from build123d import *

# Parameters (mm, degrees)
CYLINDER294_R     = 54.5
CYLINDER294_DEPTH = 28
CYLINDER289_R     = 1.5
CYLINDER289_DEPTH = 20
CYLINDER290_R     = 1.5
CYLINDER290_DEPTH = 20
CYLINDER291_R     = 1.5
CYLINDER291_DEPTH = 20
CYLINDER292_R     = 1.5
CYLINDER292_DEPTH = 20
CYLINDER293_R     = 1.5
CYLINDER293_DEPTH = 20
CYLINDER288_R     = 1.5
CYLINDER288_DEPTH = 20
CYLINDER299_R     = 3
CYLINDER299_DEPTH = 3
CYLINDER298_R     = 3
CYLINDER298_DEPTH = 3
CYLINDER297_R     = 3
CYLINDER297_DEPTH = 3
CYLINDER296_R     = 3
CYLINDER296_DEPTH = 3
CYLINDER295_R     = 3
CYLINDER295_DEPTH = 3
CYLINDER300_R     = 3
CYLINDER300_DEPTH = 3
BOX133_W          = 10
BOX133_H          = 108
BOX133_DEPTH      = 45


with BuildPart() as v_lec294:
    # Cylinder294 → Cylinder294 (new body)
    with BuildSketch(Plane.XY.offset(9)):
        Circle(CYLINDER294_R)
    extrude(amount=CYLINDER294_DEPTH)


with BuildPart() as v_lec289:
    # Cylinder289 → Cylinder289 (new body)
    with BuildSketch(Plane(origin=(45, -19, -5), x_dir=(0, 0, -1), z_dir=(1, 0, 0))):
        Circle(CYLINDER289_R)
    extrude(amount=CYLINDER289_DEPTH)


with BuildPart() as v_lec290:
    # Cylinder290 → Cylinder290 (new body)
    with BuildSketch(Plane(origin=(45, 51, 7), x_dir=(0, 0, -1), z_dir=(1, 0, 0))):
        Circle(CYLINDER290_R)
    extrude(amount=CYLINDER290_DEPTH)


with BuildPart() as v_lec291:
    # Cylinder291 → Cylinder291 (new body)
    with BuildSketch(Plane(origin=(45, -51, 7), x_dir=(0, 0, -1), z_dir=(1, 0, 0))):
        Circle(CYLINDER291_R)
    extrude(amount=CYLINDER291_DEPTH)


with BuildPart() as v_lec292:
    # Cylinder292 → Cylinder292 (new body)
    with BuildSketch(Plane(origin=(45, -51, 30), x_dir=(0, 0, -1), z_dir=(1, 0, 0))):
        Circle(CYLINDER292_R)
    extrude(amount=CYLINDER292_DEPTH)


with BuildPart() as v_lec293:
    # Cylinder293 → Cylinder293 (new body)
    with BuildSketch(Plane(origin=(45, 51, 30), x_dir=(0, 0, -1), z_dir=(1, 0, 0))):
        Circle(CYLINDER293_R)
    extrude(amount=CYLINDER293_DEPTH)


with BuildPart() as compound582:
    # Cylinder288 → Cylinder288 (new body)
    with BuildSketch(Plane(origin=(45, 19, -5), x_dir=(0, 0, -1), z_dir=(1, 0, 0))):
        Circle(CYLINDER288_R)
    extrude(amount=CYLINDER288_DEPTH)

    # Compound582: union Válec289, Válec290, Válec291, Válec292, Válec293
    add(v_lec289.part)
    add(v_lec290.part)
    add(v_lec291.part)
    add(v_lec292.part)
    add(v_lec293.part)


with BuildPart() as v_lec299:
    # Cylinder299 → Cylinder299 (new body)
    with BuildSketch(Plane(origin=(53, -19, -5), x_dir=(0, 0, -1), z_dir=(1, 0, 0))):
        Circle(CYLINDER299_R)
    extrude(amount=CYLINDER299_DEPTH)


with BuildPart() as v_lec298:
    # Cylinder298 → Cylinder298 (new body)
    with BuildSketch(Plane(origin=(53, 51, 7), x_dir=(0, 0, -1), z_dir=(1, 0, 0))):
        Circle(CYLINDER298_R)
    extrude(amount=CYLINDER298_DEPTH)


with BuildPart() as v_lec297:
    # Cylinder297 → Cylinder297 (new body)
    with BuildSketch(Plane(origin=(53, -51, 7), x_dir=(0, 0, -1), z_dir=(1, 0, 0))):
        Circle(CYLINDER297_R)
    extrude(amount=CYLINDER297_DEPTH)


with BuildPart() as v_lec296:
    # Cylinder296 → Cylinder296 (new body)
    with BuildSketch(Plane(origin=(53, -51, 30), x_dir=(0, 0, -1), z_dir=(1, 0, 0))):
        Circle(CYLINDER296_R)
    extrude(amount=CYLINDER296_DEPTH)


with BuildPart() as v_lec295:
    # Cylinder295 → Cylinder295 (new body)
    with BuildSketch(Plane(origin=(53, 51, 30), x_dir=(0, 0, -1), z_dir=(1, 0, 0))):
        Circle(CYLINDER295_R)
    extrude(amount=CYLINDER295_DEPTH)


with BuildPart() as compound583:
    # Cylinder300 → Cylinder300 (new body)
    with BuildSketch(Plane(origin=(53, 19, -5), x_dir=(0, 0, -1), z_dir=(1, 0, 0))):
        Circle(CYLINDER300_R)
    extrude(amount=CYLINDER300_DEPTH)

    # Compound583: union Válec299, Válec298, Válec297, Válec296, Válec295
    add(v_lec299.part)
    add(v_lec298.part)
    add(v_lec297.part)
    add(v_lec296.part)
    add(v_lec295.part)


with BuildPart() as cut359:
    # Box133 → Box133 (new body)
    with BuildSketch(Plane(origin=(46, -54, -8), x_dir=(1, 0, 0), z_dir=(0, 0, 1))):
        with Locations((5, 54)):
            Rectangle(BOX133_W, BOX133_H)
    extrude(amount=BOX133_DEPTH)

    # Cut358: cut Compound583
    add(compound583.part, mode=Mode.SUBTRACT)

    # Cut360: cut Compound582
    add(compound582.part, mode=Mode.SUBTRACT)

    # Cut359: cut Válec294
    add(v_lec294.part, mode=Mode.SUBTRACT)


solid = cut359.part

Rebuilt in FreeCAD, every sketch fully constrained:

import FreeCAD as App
import Part
import Sketcher
from FreeCAD import Vector


def add_polygon(sketch, points):
    """Adds a closed chain of lines whose ends are joined by coincident constraints."""
    first, n = sketch.GeometryCount, len(points)
    for a, b in zip(points, points[1:] + points[:1]):
        sketch.addGeometry(Part.LineSegment(App.Vector(*a, 0), App.Vector(*b, 0)), False)
    for i in range(n):
        sketch.addConstraint(Sketcher.Constraint("Coincident", first + i, 2, first + (i + 1) % n, 1))

doc = App.newDocument("Part")
body = doc.addObject("PartDesign::Body", "Body")

# Sketch on XY plane
sketch1 = doc.addObject("Sketcher::SketchObject", "Sketch")
body.addObject(sketch1)
sketch1.AttachmentSupport = (doc.XY_Plane, [""])
sketch1.MapMode = "FlatFace"
sketch1.AttachmentOffset = App.Placement(Vector(0, 0, 9), App.Rotation())
sketch1.addGeometry(Part.Circle(Vector(0, 0, 0), Vector(0, 0, 1), 54), False)
sketch1.addConstraint(Sketcher.Constraint("Coincident", 0, 3, -1, 1))
sketch1.addConstraint(Sketcher.Constraint("Diameter", 0, 109.0))
pad1 = doc.addObject("PartDesign::Pad", "Pad")
body.addObject(pad1)
pad1.Profile = sketch1
pad1.Length = 28
body2 = doc.addObject("PartDesign::Body", "Body001")

# Sketch on YZ plane
sketch2 = doc.addObject("Sketcher::SketchObject", "Sketch001")
body2.addObject(sketch2)
sketch2.AttachmentSupport = (doc.getObject("YZ_Plane001"), [""])
sketch2.MapMode = "FlatFace"
sketch2.AttachmentOffset = App.Placement(Vector(0, 0, 45), App.Rotation())
sketch2.addGeometry(Part.Circle(Vector(-19, -5, 0), Vector(0, 0, 1), 1.5), False)
sketch2.addConstraint(Sketcher.Constraint("Diameter", 0, 3.0))
sketch2.addConstraint(Sketcher.Constraint("DistanceX", 0, 3, -1, 1, 19.0))
sketch2.addConstraint(Sketcher.Constraint("DistanceY", 0, 3, -1, 1, 5.0))
pad2 = doc.addObject("PartDesign::Pad", "Pad001")
body2.addObject(pad2)
pad2.Profile = sketch2
pad2.Length = 20
body3 = doc.addObject("PartDesign::Body", "Body002")

# Sketch on YZ plane
sketch3 = doc.addObject("Sketcher::SketchObject", "Sketch002")
body3.addObject(sketch3)
sketch3.AttachmentSupport = (doc.getObject("YZ_Plane002"), [""])
sketch3.MapMode = "FlatFace"
sketch3.AttachmentOffset = App.Placement(Vector(0, 0, 45), App.Rotation())
sketch3.addGeometry(Part.Circle(Vector(51, 7, 0), Vector(0, 0, 1), 1.5), False)
sketch3.addConstraint(Sketcher.Constraint("Diameter", 0, 3.0))
sketch3.addConstraint(Sketcher.Constraint("DistanceX", -1, 1, 0, 3, 51.0))
sketch3.addConstraint(Sketcher.Constraint("DistanceY", -1, 1, 0, 3, 7.0))
pad3 = doc.addObject("PartDesign::Pad", "Pad002")
body3.addObject(pad3)
pad3.Profile = sketch3
pad3.Length = 20
body4 = doc.addObject("PartDesign::Body", "Body003")

# Sketch on YZ plane
sketch4 = doc.addObject("Sketcher::SketchObject", "Sketch003")
body4.addObject(sketch4)
sketch4.AttachmentSupport = (doc.getObject("YZ_Plane003"), [""])
sketch4.MapMode = "FlatFace"
sketch4.AttachmentOffset = App.Placement(Vector(0, 0, 45), App.Rotation())
sketch4.addGeometry(Part.Circle(Vector(-51, 7, 0), Vector(0, 0, 1), 1.5), False)
sketch4.addConstraint(Sketcher.Constraint("Diameter", 0, 3.0))
sketch4.addConstraint(Sketcher.Constraint("DistanceX", 0, 3, -1, 1, 51.0))
sketch4.addConstraint(Sketcher.Constraint("DistanceY", -1, 1, 0, 3, 7.0))
pad4 = doc.addObject("PartDesign::Pad", "Pad003")
body4.addObject(pad4)
pad4.Profile = sketch4
pad4.Length = 20
body5 = doc.addObject("PartDesign::Body", "Body004")

# Sketch on YZ plane
sketch5 = doc.addObject("Sketcher::SketchObject", "Sketch004")
body5.addObject(sketch5)
sketch5.AttachmentSupport = (doc.getObject("YZ_Plane004"), [""])
sketch5.MapMode = "FlatFace"
sketch5.AttachmentOffset = App.Placement(Vector(0, 0, 45), App.Rotation())
sketch5.addGeometry(Part.Circle(Vector(-51, 30, 0), Vector(0, 0, 1), 1.5), False)
sketch5.addConstraint(Sketcher.Constraint("Diameter", 0, 3.0))
sketch5.addConstraint(Sketcher.Constraint("DistanceX", 0, 3, -1, 1, 51.0))
sketch5.addConstraint(Sketcher.Constraint("DistanceY", -1, 1, 0, 3, 30.0))
pad5 = doc.addObject("PartDesign::Pad", "Pad004")
body5.addObject(pad5)
pad5.Profile = sketch5
pad5.Length = 20
body6 = doc.addObject("PartDesign::Body", "Body005")

# Sketch on YZ plane
sketch6 = doc.addObject("Sketcher::SketchObject", "Sketch005")
body6.addObject(sketch6)
sketch6.AttachmentSupport = (doc.getObject("YZ_Plane005"), [""])
sketch6.MapMode = "FlatFace"
sketch6.AttachmentOffset = App.Placement(Vector(0, 0, 45), App.Rotation())
sketch6.addGeometry(Part.Circle(Vector(51, 30, 0), Vector(0, 0, 1), 1.5), False)
sketch6.addConstraint(Sketcher.Constraint("Diameter", 0, 3.0))
sketch6.addConstraint(Sketcher.Constraint("DistanceX", -1, 1, 0, 3, 51.0))
sketch6.addConstraint(Sketcher.Constraint("DistanceY", -1, 1, 0, 3, 30.0))
pad6 = doc.addObject("PartDesign::Pad", "Pad005")
body6.addObject(pad6)
pad6.Profile = sketch6
pad6.Length = 20
body7 = doc.addObject("PartDesign::Body", "Body006")
body7.AllowCompound = True

# Sketch on YZ plane
sketch7 = doc.addObject("Sketcher::SketchObject", "Sketch006")
body7.addObject(sketch7)
sketch7.AttachmentSupport = (doc.getObject("YZ_Plane006"), [""])
sketch7.MapMode = "FlatFace"
sketch7.AttachmentOffset = App.Placement(Vector(0, 0, 45), App.Rotation())
sketch7.addGeometry(Part.Circle(Vector(19, -5, 0), Vector(0, 0, 1), 1.5), False)
sketch7.addConstraint(Sketcher.Constraint("Diameter", 0, 3.0))
sketch7.addConstraint(Sketcher.Constraint("DistanceX", -1, 1, 0, 3, 19.0))
sketch7.addConstraint(Sketcher.Constraint("DistanceY", 0, 3, -1, 1, 5.0))
pad7 = doc.addObject("PartDesign::Pad", "Pad006")
body7.addObject(pad7)
pad7.Profile = sketch7
pad7.Length = 20
doc.recompute()

boolean = doc.addObject("PartDesign::Boolean", "Boolean")
body7.addObject(boolean)
boolean.Type = "Fuse"
boolean.addObjects([body2])
doc.recompute()

boolean2 = doc.addObject("PartDesign::Boolean", "Boolean001")
body7.addObject(boolean2)
boolean2.Type = "Fuse"
boolean2.addObjects([body3])
doc.recompute()

boolean3 = doc.addObject("PartDesign::Boolean", "Boolean002")
body7.addObject(boolean3)
boolean3.Type = "Fuse"
boolean3.addObjects([body4])
doc.recompute()

boolean4 = doc.addObject("PartDesign::Boolean", "Boolean003")
body7.addObject(boolean4)
boolean4.Type = "Fuse"
boolean4.addObjects([body5])
doc.recompute()

boolean5 = doc.addObject("PartDesign::Boolean", "Boolean004")
body7.addObject(boolean5)
boolean5.Type = "Fuse"
boolean5.addObjects([body6])
body8 = doc.addObject("PartDesign::Body", "Body007")

# Sketch on YZ plane
sketch8 = doc.addObject("Sketcher::SketchObject", "Sketch007")
body8.addObject(sketch8)
sketch8.AttachmentSupport = (doc.getObject("YZ_Plane007"), [""])
sketch8.MapMode = "FlatFace"
sketch8.AttachmentOffset = App.Placement(Vector(0, 0, 53), App.Rotation())
sketch8.addGeometry(Part.Circle(Vector(-19, -5, 0), Vector(0, 0, 1), 3), False)
sketch8.addConstraint(Sketcher.Constraint("Diameter", 0, 6.0))
sketch8.addConstraint(Sketcher.Constraint("DistanceX", 0, 3, -1, 1, 19.0))
sketch8.addConstraint(Sketcher.Constraint("DistanceY", 0, 3, -1, 1, 5.0))
pad8 = doc.addObject("PartDesign::Pad", "Pad007")
body8.addObject(pad8)
pad8.Profile = sketch8
pad8.Length = 3
body9 = doc.addObject("PartDesign::Body", "Body008")

# Sketch on YZ plane
sketch9 = doc.addObject("Sketcher::SketchObject", "Sketch008")
body9.addObject(sketch9)
sketch9.AttachmentSupport = (doc.getObject("YZ_Plane008"), [""])
sketch9.MapMode = "FlatFace"
sketch9.AttachmentOffset = App.Placement(Vector(0, 0, 53), App.Rotation())
sketch9.addGeometry(Part.Circle(Vector(51, 7, 0), Vector(0, 0, 1), 3), False)
sketch9.addConstraint(Sketcher.Constraint("Diameter", 0, 6.0))
sketch9.addConstraint(Sketcher.Constraint("DistanceX", -1, 1, 0, 3, 51.0))
sketch9.addConstraint(Sketcher.Constraint("DistanceY", -1, 1, 0, 3, 7.0))
pad9 = doc.addObject("PartDesign::Pad", "Pad008")
body9.addObject(pad9)
pad9.Profile = sketch9
pad9.Length = 3
body10 = doc.addObject("PartDesign::Body", "Body009")

# Sketch on YZ plane
sketch10 = doc.addObject("Sketcher::SketchObject", "Sketch009")
body10.addObject(sketch10)
sketch10.AttachmentSupport = (doc.getObject("YZ_Plane009"), [""])
sketch10.MapMode = "FlatFace"
sketch10.AttachmentOffset = App.Placement(Vector(0, 0, 53), App.Rotation())
sketch10.addGeometry(Part.Circle(Vector(-51, 7, 0), Vector(0, 0, 1), 3), False)
sketch10.addConstraint(Sketcher.Constraint("Diameter", 0, 6.0))
sketch10.addConstraint(Sketcher.Constraint("DistanceX", 0, 3, -1, 1, 51.0))
sketch10.addConstraint(Sketcher.Constraint("DistanceY", -1, 1, 0, 3, 7.0))
pad10 = doc.addObject("PartDesign::Pad", "Pad009")
body10.addObject(pad10)
pad10.Profile = sketch10
pad10.Length = 3
body11 = doc.addObject("PartDesign::Body", "Body010")

# Sketch on YZ plane
sketch11 = doc.addObject("Sketcher::SketchObject", "Sketch010")
body11.addObject(sketch11)
sketch11.AttachmentSupport = (doc.getObject("YZ_Plane010"), [""])
sketch11.MapMode = "FlatFace"
sketch11.AttachmentOffset = App.Placement(Vector(0, 0, 53), App.Rotation())
sketch11.addGeometry(Part.Circle(Vector(-51, 30, 0), Vector(0, 0, 1), 3), False)
sketch11.addConstraint(Sketcher.Constraint("Diameter", 0, 6.0))
sketch11.addConstraint(Sketcher.Constraint("DistanceX", 0, 3, -1, 1, 51.0))
sketch11.addConstraint(Sketcher.Constraint("DistanceY", -1, 1, 0, 3, 30.0))
pad11 = doc.addObject("PartDesign::Pad", "Pad010")
body11.addObject(pad11)
pad11.Profile = sketch11
pad11.Length = 3
body12 = doc.addObject("PartDesign::Body", "Body011")

# Sketch on YZ plane
sketch12 = doc.addObject("Sketcher::SketchObject", "Sketch011")
body12.addObject(sketch12)
sketch12.AttachmentSupport = (doc.getObject("YZ_Plane011"), [""])
sketch12.MapMode = "FlatFace"
sketch12.AttachmentOffset = App.Placement(Vector(0, 0, 53), App.Rotation())
sketch12.addGeometry(Part.Circle(Vector(51, 30, 0), Vector(0, 0, 1), 3), False)
sketch12.addConstraint(Sketcher.Constraint("Diameter", 0, 6.0))
sketch12.addConstraint(Sketcher.Constraint("DistanceX", -1, 1, 0, 3, 51.0))
sketch12.addConstraint(Sketcher.Constraint("DistanceY", -1, 1, 0, 3, 30.0))
pad12 = doc.addObject("PartDesign::Pad", "Pad011")
body12.addObject(pad12)
pad12.Profile = sketch12
pad12.Length = 3
body13 = doc.addObject("PartDesign::Body", "Body012")
body13.AllowCompound = True

# Sketch on YZ plane
sketch13 = doc.addObject("Sketcher::SketchObject", "Sketch012")
body13.addObject(sketch13)
sketch13.AttachmentSupport = (doc.getObject("YZ_Plane012"), [""])
sketch13.MapMode = "FlatFace"
sketch13.AttachmentOffset = App.Placement(Vector(0, 0, 53), App.Rotation())
sketch13.addGeometry(Part.Circle(Vector(19, -5, 0), Vector(0, 0, 1), 3), False)
sketch13.addConstraint(Sketcher.Constraint("Diameter", 0, 6.0))
sketch13.addConstraint(Sketcher.Constraint("DistanceX", -1, 1, 0, 3, 19.0))
sketch13.addConstraint(Sketcher.Constraint("DistanceY", 0, 3, -1, 1, 5.0))
pad13 = doc.addObject("PartDesign::Pad", "Pad012")
body13.addObject(pad13)
pad13.Profile = sketch13
pad13.Length = 3
doc.recompute()

boolean6 = doc.addObject("PartDesign::Boolean", "Boolean005")
body13.addObject(boolean6)
boolean6.Type = "Fuse"
boolean6.addObjects([body8])
doc.recompute()

boolean7 = doc.addObject("PartDesign::Boolean", "Boolean006")
body13.addObject(boolean7)
boolean7.Type = "Fuse"
boolean7.addObjects([body9])
doc.recompute()

boolean8 = doc.addObject("PartDesign::Boolean", "Boolean007")
body13.addObject(boolean8)
boolean8.Type = "Fuse"
boolean8.addObjects([body10])
doc.recompute()

boolean9 = doc.addObject("PartDesign::Boolean", "Boolean008")
body13.addObject(boolean9)
boolean9.Type = "Fuse"
boolean9.addObjects([body11])
doc.recompute()

boolean10 = doc.addObject("PartDesign::Boolean", "Boolean009")
body13.addObject(boolean10)
boolean10.Type = "Fuse"
boolean10.addObjects([body12])
body14 = doc.addObject("PartDesign::Body", "Body013")

# Sketch on XY plane
sketch14 = doc.addObject("Sketcher::SketchObject", "Sketch013")
body14.addObject(sketch14)
sketch14.AttachmentSupport = (doc.getObject("XY_Plane013"), [""])
sketch14.MapMode = "FlatFace"
sketch14.AttachmentOffset = App.Placement(Vector(0, 0, -8), App.Rotation())
add_polygon(sketch14, [(46, 54), (46, -54), (56, -54), (56, 54)])  # lines 0-3
sketch14.addConstraint(Sketcher.Constraint("Vertical", 0))
sketch14.addConstraint(Sketcher.Constraint("Horizontal", 1))
sketch14.addConstraint(Sketcher.Constraint("Vertical", 2))
sketch14.addConstraint(Sketcher.Constraint("Horizontal", 3))
sketch14.addConstraint(Sketcher.Constraint("DistanceX", 1, 1, 1, 2, 10.0))
sketch14.addConstraint(Sketcher.Constraint("DistanceY", 0, 2, 0, 1, 108.0))
sketch14.addConstraint(Sketcher.Constraint("DistanceX", -1, 1, 0, 2, 46.0))
sketch14.addConstraint(Sketcher.Constraint("DistanceY", 0, 2, -1, 1, 54.0))
pad14 = doc.addObject("PartDesign::Pad", "Pad013")
body14.addObject(pad14)
pad14.Profile = sketch14
pad14.Length = 45
doc.recompute()

boolean11 = doc.addObject("PartDesign::Boolean", "Boolean010")
body14.addObject(boolean11)
boolean11.Type = "Cut"
boolean11.addObjects([body13])
doc.recompute()

boolean12 = doc.addObject("PartDesign::Boolean", "Boolean011")
body14.addObject(boolean12)
boolean12.Type = "Cut"
boolean12.addObjects([body7])
doc.recompute()

boolean13 = doc.addObject("PartDesign::Boolean", "Boolean012")
body14.addObject(boolean13)
boolean13.Type = "Cut"
boolean13.addObjects([body])

doc.recompute()
